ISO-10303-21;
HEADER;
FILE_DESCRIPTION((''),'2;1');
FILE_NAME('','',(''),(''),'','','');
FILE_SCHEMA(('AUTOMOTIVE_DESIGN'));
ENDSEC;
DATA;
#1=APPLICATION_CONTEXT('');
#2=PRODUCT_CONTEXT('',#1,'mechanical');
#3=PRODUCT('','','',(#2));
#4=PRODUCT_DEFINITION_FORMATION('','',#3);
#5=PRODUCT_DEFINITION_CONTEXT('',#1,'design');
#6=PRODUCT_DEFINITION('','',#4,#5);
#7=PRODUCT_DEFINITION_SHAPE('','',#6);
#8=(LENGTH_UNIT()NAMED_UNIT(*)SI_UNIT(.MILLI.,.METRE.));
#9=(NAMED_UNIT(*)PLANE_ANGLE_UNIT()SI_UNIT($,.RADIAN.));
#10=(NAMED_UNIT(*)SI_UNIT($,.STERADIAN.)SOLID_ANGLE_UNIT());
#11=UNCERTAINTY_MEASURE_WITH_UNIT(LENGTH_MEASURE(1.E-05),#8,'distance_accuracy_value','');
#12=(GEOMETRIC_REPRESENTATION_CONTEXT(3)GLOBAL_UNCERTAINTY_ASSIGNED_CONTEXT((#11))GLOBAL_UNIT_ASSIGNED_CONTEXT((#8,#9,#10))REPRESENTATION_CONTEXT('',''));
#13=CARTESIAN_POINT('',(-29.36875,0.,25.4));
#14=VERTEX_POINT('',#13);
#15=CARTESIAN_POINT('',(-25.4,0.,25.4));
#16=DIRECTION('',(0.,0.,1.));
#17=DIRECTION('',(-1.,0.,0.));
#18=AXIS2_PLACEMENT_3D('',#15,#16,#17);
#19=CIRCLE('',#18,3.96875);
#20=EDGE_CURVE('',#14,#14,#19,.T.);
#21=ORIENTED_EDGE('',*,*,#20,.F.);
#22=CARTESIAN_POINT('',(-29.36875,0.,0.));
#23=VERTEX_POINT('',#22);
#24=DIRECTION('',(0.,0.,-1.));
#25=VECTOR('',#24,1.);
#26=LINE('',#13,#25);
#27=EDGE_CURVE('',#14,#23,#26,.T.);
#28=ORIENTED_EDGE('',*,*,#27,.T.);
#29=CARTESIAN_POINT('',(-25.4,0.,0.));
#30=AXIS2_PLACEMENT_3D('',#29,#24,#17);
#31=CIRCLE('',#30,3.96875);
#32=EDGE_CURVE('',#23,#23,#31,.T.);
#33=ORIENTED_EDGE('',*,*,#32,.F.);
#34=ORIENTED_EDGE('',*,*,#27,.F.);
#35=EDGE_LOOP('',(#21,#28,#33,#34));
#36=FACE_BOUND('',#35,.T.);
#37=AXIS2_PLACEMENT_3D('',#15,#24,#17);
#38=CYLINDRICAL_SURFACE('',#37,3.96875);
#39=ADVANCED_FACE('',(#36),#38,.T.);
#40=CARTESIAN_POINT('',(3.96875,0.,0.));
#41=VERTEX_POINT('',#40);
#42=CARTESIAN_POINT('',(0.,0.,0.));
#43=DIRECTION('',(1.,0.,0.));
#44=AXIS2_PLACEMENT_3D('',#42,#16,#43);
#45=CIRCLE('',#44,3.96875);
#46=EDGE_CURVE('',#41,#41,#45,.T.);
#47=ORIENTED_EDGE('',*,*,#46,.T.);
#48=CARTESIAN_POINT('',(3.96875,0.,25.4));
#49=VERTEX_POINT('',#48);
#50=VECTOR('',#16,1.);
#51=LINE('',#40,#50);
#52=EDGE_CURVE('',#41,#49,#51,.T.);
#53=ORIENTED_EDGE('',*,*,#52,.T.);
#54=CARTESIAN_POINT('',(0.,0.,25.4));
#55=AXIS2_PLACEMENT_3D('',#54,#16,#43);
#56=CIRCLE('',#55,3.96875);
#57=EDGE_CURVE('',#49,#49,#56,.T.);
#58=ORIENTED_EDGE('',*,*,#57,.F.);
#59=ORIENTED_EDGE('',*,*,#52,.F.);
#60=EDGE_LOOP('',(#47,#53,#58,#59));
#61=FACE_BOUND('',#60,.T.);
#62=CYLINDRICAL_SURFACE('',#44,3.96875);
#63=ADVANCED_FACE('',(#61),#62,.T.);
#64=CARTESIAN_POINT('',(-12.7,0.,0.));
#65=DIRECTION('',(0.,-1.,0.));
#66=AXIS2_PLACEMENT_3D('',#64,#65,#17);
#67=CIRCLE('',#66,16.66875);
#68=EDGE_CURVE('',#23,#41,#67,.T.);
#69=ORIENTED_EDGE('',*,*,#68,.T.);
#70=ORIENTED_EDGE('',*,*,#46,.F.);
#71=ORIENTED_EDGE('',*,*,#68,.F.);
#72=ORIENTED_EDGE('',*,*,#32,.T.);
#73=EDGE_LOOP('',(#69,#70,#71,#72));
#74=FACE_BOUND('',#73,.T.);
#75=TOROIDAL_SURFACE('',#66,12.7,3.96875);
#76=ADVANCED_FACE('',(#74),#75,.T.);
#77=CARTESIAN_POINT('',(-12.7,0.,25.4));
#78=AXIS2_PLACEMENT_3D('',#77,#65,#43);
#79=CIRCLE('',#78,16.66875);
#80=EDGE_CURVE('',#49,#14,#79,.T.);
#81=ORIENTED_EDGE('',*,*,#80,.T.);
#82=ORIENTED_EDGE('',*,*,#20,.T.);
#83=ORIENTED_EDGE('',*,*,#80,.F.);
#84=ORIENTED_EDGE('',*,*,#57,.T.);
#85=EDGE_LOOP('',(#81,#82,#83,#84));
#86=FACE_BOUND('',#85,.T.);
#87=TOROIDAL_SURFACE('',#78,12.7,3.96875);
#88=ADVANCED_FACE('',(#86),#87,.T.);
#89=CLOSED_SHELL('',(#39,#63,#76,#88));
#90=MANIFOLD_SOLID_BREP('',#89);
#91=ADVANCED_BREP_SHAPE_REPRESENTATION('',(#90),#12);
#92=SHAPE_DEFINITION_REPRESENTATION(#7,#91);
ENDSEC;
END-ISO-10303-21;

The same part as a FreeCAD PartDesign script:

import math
import FreeCAD as App
import Part
import Sketcher
from FreeCAD import Vector
Q = App.Units.Quantity

doc = App.newDocument("Part")
body = doc.addObject("PartDesign::Body", "Body")

# Sketch on XY plane
sketch1 = body.newObject("Sketcher::SketchObject", "Sketch")
sketch1.AttachmentSupport = (doc.getObject("XY_Plane"), [""])
sketch1.MapMode = "FlatFace"
sketch1.addGeometry(Part.Circle(Vector(0, 0, 0), Vector(0, 0, 1), 4), False)
sketch1.addConstraint([
    Sketcher.Constraint("Coincident", 0, 3, -1, 1),
    Sketcher.Constraint("Diameter", 0, Q("0.3125 in")),
])

# Sketch on XZ plane
sketch2 = body.newObject("Sketcher::SketchObject", "Sketch001")
sketch2.AttachmentSupport = (doc.getObject("XZ_Plane"), [""])
sketch2.MapMode = "FlatFace"
sketch2.addGeometry([
    Part.LineSegment(Vector(0, 0, 0), Vector(0, 25, 0)),
    Part.ArcOfCircle(Part.Circle(Vector(-13, 25, 0), Vector(0, 0, 1), 13), math.radians(0), math.radians(180)),
    Part.LineSegment(Vector(-25, 25, 0), Vector(-25, 0, 0)),
    Part.ArcOfCircle(Part.Circle(Vector(-13, 0, 0), Vector(0, 0, 1), 13), math.radians(180), math.radians(360)),
], False)
sketch2.addConstraint([
    Sketcher.Constraint("Tangent", 0, 2, 1, 1),
    Sketcher.Constraint("Tangent", 1, 2, 2, 1),
    Sketcher.Constraint("Tangent", 2, 2, 3, 1),
    Sketcher.Constraint("Tangent", 3, 2, 0, 1),
    Sketcher.Constraint("Vertical", 0),
    Sketcher.Constraint("Vertical", 2),
    Sketcher.Constraint("Coincident", 3, 2, -1, 1),
    Sketcher.Constraint("Radius", 1, Q("0.5 in")),
    Sketcher.Constraint("DistanceY", 0, 1, 0, 2, Q("1 in")),
])
doc.recompute()

additivepipe = body.newObject("PartDesign::AdditivePipe", "AdditivePipe")
additivepipe.Profile = sketch1
additivepipe.Spine = (sketch2, ["Edge1", "Edge2", "Edge3", "Edge4"])

doc.recompute()
